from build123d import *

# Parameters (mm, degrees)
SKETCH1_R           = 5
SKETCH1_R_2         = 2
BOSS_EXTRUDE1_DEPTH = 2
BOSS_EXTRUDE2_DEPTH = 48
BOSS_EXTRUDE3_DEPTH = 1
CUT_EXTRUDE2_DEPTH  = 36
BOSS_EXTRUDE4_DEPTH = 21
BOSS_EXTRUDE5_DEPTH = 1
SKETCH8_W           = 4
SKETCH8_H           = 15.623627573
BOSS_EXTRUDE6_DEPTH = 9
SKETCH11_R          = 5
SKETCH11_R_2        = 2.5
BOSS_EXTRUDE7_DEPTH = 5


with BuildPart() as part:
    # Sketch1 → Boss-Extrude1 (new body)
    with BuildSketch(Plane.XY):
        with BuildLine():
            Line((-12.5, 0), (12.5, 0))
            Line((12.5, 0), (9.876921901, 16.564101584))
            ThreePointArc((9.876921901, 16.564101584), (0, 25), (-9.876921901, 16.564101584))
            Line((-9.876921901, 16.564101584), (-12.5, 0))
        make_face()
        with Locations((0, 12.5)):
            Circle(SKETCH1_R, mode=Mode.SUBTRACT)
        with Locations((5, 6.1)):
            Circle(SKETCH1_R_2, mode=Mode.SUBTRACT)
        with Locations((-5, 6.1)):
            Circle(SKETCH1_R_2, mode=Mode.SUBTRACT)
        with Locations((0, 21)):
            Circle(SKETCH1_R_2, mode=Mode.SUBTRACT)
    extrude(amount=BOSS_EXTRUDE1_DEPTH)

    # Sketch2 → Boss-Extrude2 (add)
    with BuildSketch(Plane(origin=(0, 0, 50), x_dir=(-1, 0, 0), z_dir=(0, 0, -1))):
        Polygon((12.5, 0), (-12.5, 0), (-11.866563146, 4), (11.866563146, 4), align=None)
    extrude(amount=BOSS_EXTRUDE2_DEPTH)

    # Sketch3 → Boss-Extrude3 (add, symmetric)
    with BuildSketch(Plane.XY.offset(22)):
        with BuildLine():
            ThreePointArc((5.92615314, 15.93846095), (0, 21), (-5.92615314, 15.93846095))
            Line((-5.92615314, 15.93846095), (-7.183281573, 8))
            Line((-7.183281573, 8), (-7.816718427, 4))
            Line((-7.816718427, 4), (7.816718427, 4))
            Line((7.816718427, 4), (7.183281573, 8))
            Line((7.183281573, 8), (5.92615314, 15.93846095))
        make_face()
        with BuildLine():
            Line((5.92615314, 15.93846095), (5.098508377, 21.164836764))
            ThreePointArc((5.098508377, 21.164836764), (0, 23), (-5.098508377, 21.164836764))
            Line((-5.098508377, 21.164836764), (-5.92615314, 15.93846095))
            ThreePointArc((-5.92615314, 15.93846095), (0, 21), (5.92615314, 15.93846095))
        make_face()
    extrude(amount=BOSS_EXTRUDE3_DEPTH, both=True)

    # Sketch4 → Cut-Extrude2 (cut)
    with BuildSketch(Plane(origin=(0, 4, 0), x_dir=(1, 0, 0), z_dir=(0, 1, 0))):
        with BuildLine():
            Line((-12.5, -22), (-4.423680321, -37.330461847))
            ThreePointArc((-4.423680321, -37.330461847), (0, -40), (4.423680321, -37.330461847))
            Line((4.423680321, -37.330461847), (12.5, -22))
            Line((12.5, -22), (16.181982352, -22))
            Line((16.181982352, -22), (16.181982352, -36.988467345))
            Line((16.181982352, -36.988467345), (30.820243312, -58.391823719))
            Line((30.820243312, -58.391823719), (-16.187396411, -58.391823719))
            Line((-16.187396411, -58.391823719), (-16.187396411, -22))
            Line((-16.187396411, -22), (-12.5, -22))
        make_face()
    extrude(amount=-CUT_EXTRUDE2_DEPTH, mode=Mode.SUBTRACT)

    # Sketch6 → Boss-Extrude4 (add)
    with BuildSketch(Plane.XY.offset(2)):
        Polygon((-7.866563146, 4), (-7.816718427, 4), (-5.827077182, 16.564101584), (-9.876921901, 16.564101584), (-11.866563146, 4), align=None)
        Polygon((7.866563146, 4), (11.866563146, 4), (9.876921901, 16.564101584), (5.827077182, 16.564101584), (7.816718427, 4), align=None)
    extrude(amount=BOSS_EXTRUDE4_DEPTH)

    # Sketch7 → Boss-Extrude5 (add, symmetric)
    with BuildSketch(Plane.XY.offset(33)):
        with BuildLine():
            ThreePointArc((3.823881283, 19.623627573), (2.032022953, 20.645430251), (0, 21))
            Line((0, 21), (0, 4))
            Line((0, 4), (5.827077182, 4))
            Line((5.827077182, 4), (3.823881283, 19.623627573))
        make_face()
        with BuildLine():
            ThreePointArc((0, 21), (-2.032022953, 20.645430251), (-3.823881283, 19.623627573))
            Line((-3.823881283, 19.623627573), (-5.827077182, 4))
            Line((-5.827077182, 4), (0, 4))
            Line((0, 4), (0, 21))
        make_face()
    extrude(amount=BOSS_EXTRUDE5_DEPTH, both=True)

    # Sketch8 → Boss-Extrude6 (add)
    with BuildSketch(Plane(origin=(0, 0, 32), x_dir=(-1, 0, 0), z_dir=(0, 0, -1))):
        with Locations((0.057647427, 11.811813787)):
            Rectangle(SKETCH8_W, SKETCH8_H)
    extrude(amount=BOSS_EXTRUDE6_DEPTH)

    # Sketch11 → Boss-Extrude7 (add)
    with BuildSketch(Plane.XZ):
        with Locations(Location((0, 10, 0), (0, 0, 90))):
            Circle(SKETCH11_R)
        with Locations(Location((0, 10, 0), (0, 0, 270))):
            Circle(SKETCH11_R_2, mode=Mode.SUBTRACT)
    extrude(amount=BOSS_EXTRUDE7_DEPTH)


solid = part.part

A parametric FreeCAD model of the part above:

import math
import FreeCAD as App
import Part
import Sketcher

V = App.Vector
Q = App.Units.Quantity


def add_polygon(sketch, points):
    """Adds a closed chain of lines whose ends are joined by coincident constraints."""
    first, n = sketch.GeometryCount, len(points)
    for a, b in zip(points, points[1:] + points[:1]):
        sketch.addGeometry(Part.LineSegment(App.Vector(*a, 0), App.Vector(*b, 0)), False)
    for i in range(n):
        sketch.addConstraint(Sketcher.Constraint("Coincident", first + i, 2, first + (i + 1) % n, 1))

doc = App.newDocument("Part")
params = doc.addObject("Spreadsheet::Sheet", "Params")
for row, (alias, value) in enumerate([
    ("sketch1_diameter", "4 mm"),
    ("sketch1_diameter2", "10 mm"),
    ("sketch1_radius", "10 mm"),
    ("sketch1_width", "25 mm"),
    ("pad1_length", "2 mm"),
    ("sketch2_width", "25 mm"),
    ("pad2_length", "48 mm"),
    ("sketch3_radius", "8 mm"),
    ("pad3_length", "2 mm"),
    ("sketch4_radius", "5 mm"),
    ("pocket1_length", "36 mm"),
    ("pad4_length", "21 mm"),
    ("sketch6_radius", "6 mm"),
    ("pad5_length", "2 mm"),
    ("sketch7_width", "4 mm"),
    ("pad6_length", "9 mm"),
    ("sketch8_diameter", "10 mm"),
    ("sketch8_diameter2", "5 mm"),
    ("pad7_length", "5 mm"),
], start=1):
    params.set(f"A{row}", alias)
    params.set(f"B{row}", "=" + value)
    params.setAlias(f"B{row}", alias)

body = doc.addObject("PartDesign::Body", "Body")

sketch1 = body.newObject("Sketcher::SketchObject", "Sketch")
sketch1.AttachmentSupport = (doc.getObject("XY_Plane"), [""])
sketch1.MapMode = "FlatFace"
sketch1.addGeometry([
    Part.LineSegment(V(-12.5, 0, 0), V(12.5, 0, 0)),
    Part.LineSegment(V(12.5, 0, 0), V(9.9, 16.6, 0)),
    Part.ArcOfCircle(Part.Circle(V(0, 15, 0), V(0, 0, 1), 10), math.radians(9), math.radians(171)),
    Part.LineSegment(V(-9.9, 16.6, 0), V(-12.5, 0, 0)),
    Part.Circle(V(-5, 6.1, 0), V(0, 0, 1), 2),
    Part.Circle(V(5, 6.1, 0), V(0, 0, 1), 2),
    Part.Circle(V(0, 12.5, 0), V(0, 0, 1), 5),
    Part.Circle(V(0, 21, 0), V(0, 0, 1), 2),
], False)
sketch1.addConstraint([
    Sketcher.Constraint("Coincident", 0, 2, 1, 1),
    Sketcher.Constraint("Tangent", 1, 2, 2, 1),
    Sketcher.Constraint("Tangent", 2, 2, 3, 1),
    Sketcher.Constraint("Coincident", 3, 2, 0, 1),
    Sketcher.Constraint("Horizontal", 0),
    Sketcher.Constraint("Equal", 4, 5),
    Sketcher.Constraint("Equal", 5, 7),
    Sketcher.Constraint("Symmetric", 0, 2, 3, 2, -1, 1),
    Sketcher.Constraint("Symmetric", 4, 3, 5, 3, -2),
    Sketcher.Constraint("PointOnObject", 2, 3, -2),
    Sketcher.Constraint("PointOnObject", 6, 3, -2),
    Sketcher.Constraint("PointOnObject", 7, 3, -2),
    Sketcher.Constraint("Diameter", 4, Q("4 mm")),
    Sketcher.Constraint("Diameter", 6, Q("10 mm")),
    Sketcher.Constraint("Radius", 2, Q("10 mm")),
    Sketcher.Constraint("DistanceX", 0, 1, 0, 2, Q("25 mm")),
    Sketcher.Constraint("DistanceY", -1, 1, 2, 3, Q("15 mm")),
    Sketcher.Constraint("DistanceX", 4, 3, -1, 1, Q("5 mm")),
    Sketcher.Constraint("DistanceY", -1, 1, 7, 3, Q("21 mm")),
    Sketcher.Constraint("DistanceY", -1, 1, 4, 3, Q("6.1 mm")),
    Sketcher.Constraint("DistanceY", -1, 1, 6, 3, Q("12.5 mm")),
])
sketch1.setExpression("Constraints[12]", "Params.sketch1_diameter")
sketch1.setExpression("Constraints[13]", "Params.sketch1_diameter2")
sketch1.setExpression("Constraints[14]", "Params.sketch1_radius")
sketch1.setExpression("Constraints[15]", "Params.sketch1_width")
pad1 = body.newObject("PartDesign::Pad", "Pad")
pad1.Profile = sketch1
pad1.setExpression("Length", "Params.pad1_length")

sketch2 = body.newObject("Sketcher::SketchObject", "Sketch001")
sketch2.AttachmentSupport = (doc.getObject("XY_Plane"), [""])
sketch2.MapMode = "FlatFace"
sketch2.AttachmentOffset = App.Placement(V(0, 0, 50), App.Rotation())
add_polygon(sketch2, [(12.5, 0), (-12.5, 0), (-11.9, 4), (11.9, 4)])
sketch2.addConstraint([
    Sketcher.Constraint("Horizontal", 0),
    Sketcher.Constraint("Horizontal", 2),
    Sketcher.Constraint("Symmetric", 0, 2, 3, 2, -1, 1),
    Sketcher.Constraint("Equal", 1, 3),
    Sketcher.Constraint("DistanceX", 0, 2, 0, 1, Q("25 mm")),
    Sketcher.Constraint("DistanceY", -1, 1, 1, 2, Q("4 mm")),
    Sketcher.Constraint("DistanceX", 2, 1, 2, 2, Q("23.733126 mm")),
])
sketch2.setExpression("Constraints[8]", "Params.sketch2_width")
pad2 = body.newObject("PartDesign::Pad", "Pad001")
pad2.Profile = sketch2
pad2.setExpression("Length", "Params.pad2_length")
pad2.Reversed = True

sketch3 = body.newObject("Sketcher::SketchObject", "Sketch002")
sketch3.AttachmentSupport = (doc.getObject("XY_Plane"), [""])
sketch3.MapMode = "FlatFace"
sketch3.AttachmentOffset = App.Placement(V(0, 0, 22), App.Rotation())
sketch3.addGeometry([
    Part.LineSegment(V(-5.9, 15.9, 0), V(-7.2, 8, 0)),
    Part.LineSegment(V(-7.2, 8, 0), V(-7.8, 4, 0)),
    Part.LineSegment(V(-7.8, 4, 0), V(7.8, 4, 0)),
    Part.LineSegment(V(7.8, 4, 0), V(7.2, 8, 0)),
    Part.LineSegment(V(7.2, 8, 0), V(5.9, 15.9, 0)),
    Part.LineSegment(V(5.9, 15.9, 0), V(5.1, 21.2, 0)),
    Part.ArcOfCircle(Part.Circle(V(0, 15, 0), V(0, 0, 1), 8), math.radians(50), math.radians(130)),
    Part.LineSegment(V(-5.1, 21.2, 0), V(-5.9, 15.9, 0)),
], False)
sketch3.addConstraint([
    Sketcher.Constraint("Coincident", 0, 2, 1, 1),
    Sketcher.Constraint("Coincident", 1, 2, 2, 1),
    Sketcher.Constraint("Coincident", 2, 2, 3, 1),
    Sketcher.Constraint("Coincident", 3, 2, 4, 1),
    Sketcher.Constraint("Coincident", 4, 2, 5, 1),
    Sketcher.Constraint("Coincident", 5, 2, 6, 1),
    Sketcher.Constraint("Coincident", 6, 2, 7, 1),
    Sketcher.Constraint("Coincident", 7, 2, 0, 1),
    Sketcher.Constraint("Horizontal", 2),
    Sketcher.Constraint("Symmetric", 0, 2, 3, 2, -2),
    Sketcher.Constraint("Symmetric", 5, 2, 6, 2, -2),
    Sketcher.Constraint("Symmetric", 4, 2, 7, 2, -2),
    Sketcher.Constraint("Parallel", 0, 1),
    Sketcher.Constraint("Parallel", 3, 4),
    Sketcher.Constraint("Parallel", 4, 5),
    Sketcher.Constraint("Radius", 6, Q("8 mm")),
    Sketcher.Constraint("DistanceY", -1, 1, 6, 3, Q("15 mm")),
    Sketcher.Constraint("DistanceY", -1, 1, 0, 2, Q("8 mm")),
    Sketcher.Constraint("DistanceY", -1, 1, 1, 2, Q("4 mm")),
    Sketcher.Constraint("DistanceX", 0, 2, 2, 2, Q("15 mm")),
    Sketcher.Constraint("DistanceX", 2, 1, 2, 2, Q("15.633437 mm")),
    Sketcher.Constraint("DistanceY", -1, 1, 4, 2, Q("15.938461 mm")),
])
sketch3.setExpression("Constraints[15]", "Params.sketch3_radius")
pad3 = body.newObject("PartDesign::Pad", "Pad002")
pad3.Profile = sketch3
pad3.setExpression("Length", "Params.pad3_length")
pad3.Midplane = True

sketch4 = body.newObject("Sketcher::SketchObject", "Sketch003")
sketch4.AttachmentSupport = (doc.getObject("XZ_Plane"), [""])
sketch4.MapMode = "FlatFace"
sketch4.AttachmentOffset = App.Placement(V(0, 0, -4), App.Rotation())
sketch4.addGeometry([
    Part.LineSegment(V(-4.4, 37.3, 0), V(-12.5, 22, 0)),
    Part.LineSegment(V(-12.5, 22, 0), V(-16.2, 22, 0)),
    Part.LineSegment(V(-16.2, 22, 0), V(-16.2, 58.4, 0)),
    Part.LineSegment(V(-16.2, 58.4, 0), V(30.8, 58.4, 0)),
    Part.LineSegment(V(30.8, 58.4, 0), V(16.2, 37, 0)),
    Part.LineSegment(V(16.2, 37, 0), V(16.2, 22, 0)),
    Part.LineSegment(V(16.2, 22, 0), V(12.5, 22, 0)),
    Part.LineSegment(V(12.5, 22, 0), V(4.4, 37.3, 0)),
    Part.ArcOfCircle(Part.Circle(V(0, 35, 0), V(0, 0, 1), 5), math.radians(28), math.radians(152)),
], False)
sketch4.addConstraint([
    Sketcher.Constraint("Coincident", 0, 2, 1, 1),
    Sketcher.Constraint("Coincident", 1, 2, 2, 1),
    Sketcher.Constraint("Coincident", 2, 2, 3, 1),
    Sketcher.Constraint("Coincident", 3, 2, 4, 1),
    Sketcher.Constraint("Coincident", 4, 2, 5, 1),
    Sketcher.Constraint("Coincident", 5, 2, 6, 1),
    Sketcher.Constraint("Coincident", 6, 2, 7, 1),
    Sketcher.Constraint("Tangent", 7, 2, 8, 1),
    Sketcher.Constraint("Tangent", 8, 2, 0, 1),
    Sketcher.Constraint("Horizontal", 1),
    Sketcher.Constraint("Vertical", 2),
    Sketcher.Constraint("Horizontal", 3),
    Sketcher.Constraint("Vertical", 5),
    Sketcher.Constraint("Horizontal", 6),
    Sketcher.Constraint("Symmetric", 0, 2, 6, 2, -2),
    Sketcher.Constraint("PointOnObject", 8, 3, -2),
    Sketcher.Constraint("Radius", 8, Q("5 mm")),
    Sketcher.Constraint("DistanceY", -1, 1, 8, 3, Q("35 mm")),
    Sketcher.Constraint("DistanceY", -1, 1, 0, 2, Q("22 mm")),
    Sketcher.Constraint("DistanceX", 0, 2, 6, 2, Q("25 mm")),
    Sketcher.Constraint("DistanceX", 3, 1, 3, 2, Q("47.00764 mm")),
    Sketcher.Constraint("DistanceX", 1, 2, 1, 1, Q("3.687396 mm")),
    Sketcher.Constraint("DistanceX", 6, 2, 6, 1, Q("3.681982 mm")),
    Sketcher.Constraint("DistanceY", 2, 1, 2, 2, Q("36.391824 mm")),
    Sketcher.Constraint("DistanceY", 5, 2, 5, 1, Q("14.988467 mm")),
])
sketch4.setExpression("Constraints[16]", "Params.sketch4_radius")
pocket1 = body.newObject("PartDesign::Pocket", "Pocket")
pocket1.Profile = sketch4
pocket1.setExpression("Length", "Params.pocket1_length")
pocket1.Reversed = True

sketch5 = body.newObject("Sketcher::SketchObject", "Sketch004")
sketch5.AttachmentSupport = (doc.getObject("XY_Plane"), [""])
sketch5.MapMode = "FlatFace"
sketch5.AttachmentOffset = App.Placement(V(0, 0, 2), App.Rotation())
add_polygon(sketch5, [(-7.8, 4), (-5.8, 16.6), (-9.9, 16.6), (-11.9, 4)])
add_polygon(sketch5, [(11.9, 4), (9.9, 16.6), (5.8, 16.6), (7.8, 4)])
sketch5.addConstraint([
    Sketcher.Constraint("Horizontal", 1),
    Sketcher.Constraint("Horizontal", 3),
    Sketcher.Constraint("Horizontal", 5),
    Sketcher.Constraint("Horizontal", 7),
    Sketcher.Constraint("Symmetric", 1, 2, 4, 2, -2),
    Sketcher.Constraint("Symmetric", 3, 2, 6, 2, -2),
    Sketcher.Constraint("Parallel", 0, 2),
    Sketcher.Constraint("Parallel", 4, 6),
    Sketcher.Constraint("Equal", 3, 5),
    Sketcher.Constraint("DistanceY", -1, 1, 2, 2, Q("4 mm")),
    Sketcher.Constraint("DistanceX", 0, 2, 4, 2, Q("15.703999 mm")),
    Sketcher.Constraint("DistanceY", -1, 1, 0, 2, Q("16.564102 mm")),
    Sketcher.Constraint("DistanceX", 1, 2, 1, 1, Q("4.049845 mm")),
    Sketcher.Constraint("DistanceX", 3, 2, -1, 1, Q("7.816718 mm")),
])
pad4 = body.newObject("PartDesign::Pad", "Pad003")
pad4.Profile = sketch5
pad4.setExpression("Length", "Params.pad4_length")

sketch6 = body.newObject("Sketcher::SketchObject", "Sketch005")
sketch6.AttachmentSupport = (doc.getObject("XY_Plane"), [""])
sketch6.MapMode = "FlatFace"
sketch6.AttachmentOffset = App.Placement(V(0, 0, 33), App.Rotation())
sketch6.addGeometry([
    Part.ArcOfCircle(Part.Circle(V(0, 15, 0), V(0, 0, 1), 6), math.radians(50), math.radians(90)),
    Part.ArcOfCircle(Part.Circle(V(0, 15, 0), V(0, 0, 1), 6), math.radians(90), math.radians(130)),
    Part.LineSegment(V(-3.8, 19.6, 0), V(-5.8, 4, 0)),
    Part.LineSegment(V(-5.8, 4, 0), V(5.8, 4, 0)),
    Part.LineSegment(V(5.8, 4, 0), V(3.8, 19.6, 0)),
], False)
sketch6.addConstraint([
    Sketcher.Constraint("Tangent", 0, 2, 1, 1),
    Sketcher.Constraint("Coincident", 1, 2, 2, 1),
    Sketcher.Constraint("Coincident", 2, 2, 3, 1),
    Sketcher.Constraint("Coincident", 3, 2, 4, 1),
    Sketcher.Constraint("Coincident", 4, 2, 0, 1),
    Sketcher.Constraint("Horizontal", 3),
    Sketcher.Constraint("Equal", 0, 1),
    Sketcher.Constraint("Symmetric", 1, 2, 4, 2, -2),
    Sketcher.Constraint("PointOnObject", 0, 2, -2),
    Sketcher.Constraint("Equal", 2, 4),
    Sketcher.Constraint("Radius", 0, Q("6 mm")),
    Sketcher.Constraint("DistanceY", -1, 1, 0, 3, Q("15 mm")),
    Sketcher.Constraint("DistanceY", -1, 1, 2, 2, Q("4 mm")),
    Sketcher.Constraint("DistanceX", 3, 1, 3, 2, Q("11.654154 mm")),
    Sketcher.Constraint("DistanceX", 1, 2, -1, 1, Q("3.823881 mm")),
])
sketch6.setExpression("Constraints[10]", "Params.sketch6_radius")
pad5 = body.newObject("PartDesign::Pad", "Pad004")
pad5.Profile = sketch6
pad5.setExpression("Length", "Params.pad5_length")
pad5.Midplane = True

sketch7 = body.newObject("Sketcher::SketchObject", "Sketch006")
sketch7.AttachmentSupport = (doc.getObject("XY_Plane"), [""])
sketch7.MapMode = "FlatFace"
sketch7.AttachmentOffset = App.Placement(V(0, 0, 32), App.Rotation())
add_polygon(sketch7, [(1.9, 19.6), (1.9, 4), (-2.1, 4), (-2.1, 19.6)])
sketch7.addConstraint([
    Sketcher.Constraint("Vertical", 0),
    Sketcher.Constraint("Horizontal", 1),
    Sketcher.Constraint("Vertical", 2),
    Sketcher.Constraint("Horizontal", 3),
    Sketcher.Constraint("DistanceX", 1, 2, 1, 1, Q("4 mm")),
    Sketcher.Constraint("DistanceY", -1, 1, 0, 2, Q("4 mm")),
    Sketcher.Constraint("DistanceY", 0, 2, 0, 1, Q("15.623628 mm")),
    Sketcher.Constraint("DistanceX", -1, 1, 0, 2, Q("1.942353 mm")),
])
sketch7.setExpression("Constraints[8]", "Params.sketch7_width")
pad6 = body.newObject("PartDesign::Pad", "Pad005")
pad6.Profile = sketch7
pad6.setExpression("Length", "Params.pad6_length")
pad6.Reversed = True

sketch8 = body.newObject("Sketcher::SketchObject", "Sketch007")
sketch8.AttachmentSupport = (doc.getObject("XZ_Plane"), [""])
sketch8.MapMode = "FlatFace"
sketch8.addGeometry([
    Part.Circle(V(0, 10, 0), V(0, 0, 1), 5),
    Part.Circle(V(0, 10, 0), V(0, 0, 1), 2.5),
], False)
sketch8.addConstraint([
    Sketcher.Constraint("Coincident", 1, 3, 0, 3),
    Sketcher.Constraint("PointOnObject", 0, 3, -2),
    Sketcher.Constraint("Diameter", 0, Q("10 mm")),
    Sketcher.Constraint("Diameter", 1, Q("5 mm")),
    Sketcher.Constraint("DistanceY", -1, 1, 0, 3, Q("10 mm")),
])
sketch8.setExpression("Constraints[2]", "Params.sketch8_diameter")
sketch8.setExpression("Constraints[3]", "Params.sketch8_diameter2")
pad7 = body.newObject("PartDesign::Pad", "Pad006")
pad7.Profile = sketch8
pad7.setExpression("Length", "Params.pad7_length")

doc.recompute()
